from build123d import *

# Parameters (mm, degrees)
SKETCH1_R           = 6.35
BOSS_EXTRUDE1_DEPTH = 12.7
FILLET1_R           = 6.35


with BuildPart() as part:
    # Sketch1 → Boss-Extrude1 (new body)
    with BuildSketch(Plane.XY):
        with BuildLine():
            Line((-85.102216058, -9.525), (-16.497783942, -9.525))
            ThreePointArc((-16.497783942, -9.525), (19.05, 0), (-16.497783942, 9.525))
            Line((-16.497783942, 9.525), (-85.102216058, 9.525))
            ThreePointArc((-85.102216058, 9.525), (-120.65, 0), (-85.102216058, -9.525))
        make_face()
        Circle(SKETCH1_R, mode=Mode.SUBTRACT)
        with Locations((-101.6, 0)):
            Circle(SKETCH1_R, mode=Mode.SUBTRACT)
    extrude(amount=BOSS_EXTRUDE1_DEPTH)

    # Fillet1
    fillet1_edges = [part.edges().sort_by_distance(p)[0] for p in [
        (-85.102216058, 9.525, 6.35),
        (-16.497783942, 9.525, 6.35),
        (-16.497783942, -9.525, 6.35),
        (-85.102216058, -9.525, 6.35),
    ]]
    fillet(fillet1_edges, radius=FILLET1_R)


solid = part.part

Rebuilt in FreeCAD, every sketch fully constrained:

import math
import FreeCAD as App
import Part
import Sketcher
from FreeCAD import Vector
Q = App.Units.Quantity


def edges_at(feature, points):
    """Names of the edges that pass closest to the given points."""
    edges = feature.Shape.Edges
    near = lambda p: min(range(len(edges)), key=lambda i: edges[i].distToShape(Part.Vertex(*p))[0])
    return sorted({f"Edge{near(p) + 1}" for p in points})

doc = App.newDocument("Part")
body = doc.addObject("PartDesign::Body", "Body")

sketch1 = body.newObject("Sketcher::SketchObject", "Sketch")
sketch1.AttachmentSupport = (doc.getObject("XY_Plane"), [""])
sketch1.MapMode = "FlatFace"
sketch1.addGeometry([
    Part.LineSegment(Vector(-85.102216, -9.525, 0), Vector(-16.497784, -9.525, 0)),
    Part.ArcOfCircle(Part.Circle(Vector(0, 0, 0), Vector(0, 0, 1), 19.05), math.radians(-150), math.radians(150)),
    Part.LineSegment(Vector(-16.497784, 9.525, 0), Vector(-85.102216, 9.525, 0)),
    Part.ArcOfCircle(Part.Circle(Vector(-101.6, 0, 0), Vector(0, 0, 1), 19.05), math.radians(30), math.radians(330)),
    Part.Circle(Vector(-101.6, 0, 0), Vector(0, 0, 1), 6.35),
    Part.Circle(Vector(0, 0, 0), Vector(0, 0, 1), 6.35),
], False)
sketch1.addConstraint([
    Sketcher.Constraint("Coincident", 0, 2, 1, 1),
    Sketcher.Constraint("Coincident", 1, 2, 2, 1),
    Sketcher.Constraint("Coincident", 2, 2, 3, 1),
    Sketcher.Constraint("Coincident", 3, 2, 0, 1),
    Sketcher.Constraint("Horizontal", 0),
    Sketcher.Constraint("Horizontal", 2),
    Sketcher.Constraint("Coincident", 1, 3, -1, 1),
    Sketcher.Constraint("Coincident", 5, 3, -1, 1),
    Sketcher.Constraint("Coincident", 4, 3, 3, 3),
    Sketcher.Constraint("Equal", 1, 3),
    Sketcher.Constraint("Equal", 4, 5),
    Sketcher.Constraint("Symmetric", 2, 2, 3, 2, -1),
    Sketcher.Constraint("Diameter", 4, Q("0.5 in")),
    Sketcher.Constraint("Radius", 1, Q("0.75 in")),
    Sketcher.Constraint("DistanceX", 3, 3, -1, 1, Q("4 in")),
    Sketcher.Constraint("DistanceY", 0, 2, 1, 2, Q("0.75 in")),
])
pad1 = body.newObject("PartDesign::Pad", "Pad")
pad1.Profile = sketch1
pad1.Length = Q("0.5 in")
doc.recompute()

fillet = body.newObject("PartDesign::Fillet", "Fillet")
fillet.Base = (pad1, edges_at(pad1, [
    (-85.102, 9.525, 6.35),
    (-16.498, 9.525, 6.35),
    (-16.498, -9.525, 6.35),
    (-85.102, -9.525, 6.35),
]))
fillet.Radius = Q("0.25 in")

doc.recompute()
